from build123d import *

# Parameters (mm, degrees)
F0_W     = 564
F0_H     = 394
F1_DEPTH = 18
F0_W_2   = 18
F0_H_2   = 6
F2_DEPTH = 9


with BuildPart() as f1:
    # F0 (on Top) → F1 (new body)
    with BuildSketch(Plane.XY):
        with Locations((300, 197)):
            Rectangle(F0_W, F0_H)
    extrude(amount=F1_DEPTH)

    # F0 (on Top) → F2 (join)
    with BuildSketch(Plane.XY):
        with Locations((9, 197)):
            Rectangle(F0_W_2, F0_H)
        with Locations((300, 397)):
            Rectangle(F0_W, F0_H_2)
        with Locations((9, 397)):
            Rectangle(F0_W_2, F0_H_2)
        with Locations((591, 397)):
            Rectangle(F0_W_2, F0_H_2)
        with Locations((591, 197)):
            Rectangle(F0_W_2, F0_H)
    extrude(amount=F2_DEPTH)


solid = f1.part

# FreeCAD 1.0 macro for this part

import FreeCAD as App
import Part
import Sketcher


def add_polygon(sketch, points):
    """Adds a closed chain of lines whose ends are joined by coincident constraints."""
    first, n = sketch.GeometryCount, len(points)
    for a, b in zip(points, points[1:] + points[:1]):
        sketch.addGeometry(Part.LineSegment(App.Vector(*a, 0), App.Vector(*b, 0)), False)
    for i in range(n):
        sketch.addConstraint(Sketcher.Constraint("Coincident", first + i, 2, first + (i + 1) % n, 1))

doc = App.newDocument("Part")
body = doc.addObject("PartDesign::Body", "Body")

# Sketch on XY plane
sketch1 = body.newObject("Sketcher::SketchObject", "Sketch")
sketch1.AttachmentSupport = (doc.getObject("XY_Plane"), [""])
sketch1.MapMode = "FlatFace"
add_polygon(sketch1, [(18, 394), (18, 0), (582, 0), (582, 394)])  # lines 0-3
sketch1.addConstraint([
    Sketcher.Constraint("Vertical", 0),
    Sketcher.Constraint("Horizontal", 1),
    Sketcher.Constraint("Vertical", 2),
    Sketcher.Constraint("Horizontal", 3),
    Sketcher.Constraint("PointOnObject", 0, 2, -1),
    Sketcher.Constraint("DistanceX", 1, 1, 1, 2, 564.0),
    Sketcher.Constraint("DistanceY", 0, 2, 0, 1, 394.0),
    Sketcher.Constraint("DistanceX", -1, 1, 0, 2, 18.0),
])
pad1 = body.newObject("PartDesign::Pad", "Pad")
pad1.Profile = sketch1
pad1.Length = 18

# Sketch on XY plane
sketch2 = body.newObject("Sketcher::SketchObject", "Sketch001")
sketch2.AttachmentSupport = (doc.getObject("XY_Plane"), [""])
sketch2.MapMode = "FlatFace"
add_polygon(sketch2, [(0, 0), (18, 0), (18, 394), (582, 394), (582, 0), (600, 0), (600, 400), (0, 400)])  # lines 0-7
sketch2.addConstraint([
    Sketcher.Constraint("Horizontal", 0),
    Sketcher.Constraint("Vertical", 1),
    Sketcher.Constraint("Horizontal", 2),
    Sketcher.Constraint("Vertical", 3),
    Sketcher.Constraint("Horizontal", 4),
    Sketcher.Constraint("Vertical", 5),
    Sketcher.Constraint("Horizontal", 6),
    Sketcher.Constraint("Vertical", 7),
    Sketcher.Constraint("Coincident", 7, 2, -1, 1),
    Sketcher.Constraint("PointOnObject", 3, 2, -1),
    Sketcher.Constraint("Equal", 0, 4),
    Sketcher.Constraint("DistanceX", 0, 1, 0, 2, 18.0),
    Sketcher.Constraint("DistanceX", 2, 1, 2, 2, 564.0),
    Sketcher.Constraint("DistanceY", 1, 1, 1, 2, 394.0),
    Sketcher.Constraint("DistanceY", 5, 1, 5, 2, 400.0),
])
pad2 = body.newObject("PartDesign::Pad", "Pad001")
pad2.Profile = sketch2
pad2.Length = 9

doc.recompute()
